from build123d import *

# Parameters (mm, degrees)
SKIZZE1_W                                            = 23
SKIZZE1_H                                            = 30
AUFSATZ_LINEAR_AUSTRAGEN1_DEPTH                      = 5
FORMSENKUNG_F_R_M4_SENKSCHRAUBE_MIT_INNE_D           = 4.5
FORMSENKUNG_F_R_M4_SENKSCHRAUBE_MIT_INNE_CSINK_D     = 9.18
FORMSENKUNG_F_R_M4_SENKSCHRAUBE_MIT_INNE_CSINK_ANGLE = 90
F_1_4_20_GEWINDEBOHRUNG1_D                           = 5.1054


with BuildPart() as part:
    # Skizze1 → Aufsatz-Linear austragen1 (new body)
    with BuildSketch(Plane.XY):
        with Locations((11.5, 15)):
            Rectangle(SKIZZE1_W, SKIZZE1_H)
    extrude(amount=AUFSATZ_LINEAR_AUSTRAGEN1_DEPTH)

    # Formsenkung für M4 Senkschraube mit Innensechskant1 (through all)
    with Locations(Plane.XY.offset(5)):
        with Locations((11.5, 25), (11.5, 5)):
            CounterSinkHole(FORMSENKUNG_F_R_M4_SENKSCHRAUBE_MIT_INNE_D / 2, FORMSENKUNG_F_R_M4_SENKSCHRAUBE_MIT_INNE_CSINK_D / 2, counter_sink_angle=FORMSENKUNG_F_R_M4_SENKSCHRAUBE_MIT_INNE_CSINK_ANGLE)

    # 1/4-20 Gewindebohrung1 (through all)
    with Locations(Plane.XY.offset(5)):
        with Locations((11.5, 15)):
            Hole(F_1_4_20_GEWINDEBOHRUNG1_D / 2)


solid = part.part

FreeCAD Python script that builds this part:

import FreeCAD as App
import Part
import Sketcher
from FreeCAD import Vector
Q = App.Units.Quantity


def add_polygon(sketch, points):
    """Adds a closed chain of lines whose ends are joined by coincident constraints."""
    first, n = sketch.GeometryCount, len(points)
    for a, b in zip(points, points[1:] + points[:1]):
        sketch.addGeometry(Part.LineSegment(App.Vector(*a, 0), App.Vector(*b, 0)), False)
    for i in range(n):
        sketch.addConstraint(Sketcher.Constraint("Coincident", first + i, 2, first + (i + 1) % n, 1))

doc = App.newDocument("Part")
body = doc.addObject("PartDesign::Body", "Body")

# Sketch on XY plane
sketch1 = body.newObject("Sketcher::SketchObject", "Sketch")
sketch1.AttachmentSupport = (doc.getObject("XY_Plane"), [""])
sketch1.MapMode = "FlatFace"
add_polygon(sketch1, [(0, 30), (0, 0), (23, 0), (23, 30)])  # lines 0-3
sketch1.addConstraint([
    Sketcher.Constraint("Vertical", 0),
    Sketcher.Constraint("Horizontal", 1),
    Sketcher.Constraint("Vertical", 2),
    Sketcher.Constraint("Horizontal", 3),
    Sketcher.Constraint("Coincident", 0, 2, -1, 1),
    Sketcher.Constraint("DistanceX", 1, 1, 1, 2, Q("23 mm")),
    Sketcher.Constraint("DistanceY", 0, 2, 0, 1, Q("30 mm")),
])
pad1 = body.newObject("PartDesign::Pad", "Pad")
pad1.Profile = sketch1
pad1.Length = 5

# Sketch on XY plane
sketch2 = body.newObject("Sketcher::SketchObject", "Sketch001")
sketch2.AttachmentSupport = (doc.getObject("XY_Plane"), [""])
sketch2.MapMode = "FlatFace"
sketch2.AttachmentOffset = App.Placement(Vector(0, 0, 5), App.Rotation())
sketch2.addGeometry([
    Part.Circle(Vector(11.5, 25, 0), Vector(0, 0, 1), 2.25),
    Part.Circle(Vector(11.5, 5, 0), Vector(0, 0, 1), 2.25),
], False)
sketch2.addConstraint([
    Sketcher.Constraint("Equal", 0, 1),
    Sketcher.Constraint("Vertical", 0, 3, 1, 3),
    Sketcher.Constraint("Diameter", 0, Q("4.5 mm")),
    Sketcher.Constraint("DistanceY", -1, 1, 0, 3, Q("25 mm")),
    Sketcher.Constraint("DistanceY", -1, 1, 1, 3, Q("5 mm")),
    Sketcher.Constraint("DistanceX", -1, 1, 0, 3, Q("11.5 mm")),
])
doc.recompute()
hole = body.newObject("PartDesign::Hole", "Hole")
hole.Profile = sketch2
hole.ThreadType = "None"
hole.Diameter = 4.5
hole.DepthType = "ThroughAll"
hole.HoleCutType = "Countersink"
hole.HoleCutDiameter = 9.18
hole.HoleCutCountersinkAngle = 90

# Sketch on XY plane
sketch3 = body.newObject("Sketcher::SketchObject", "Sketch002")
sketch3.AttachmentSupport = (doc.getObject("XY_Plane"), [""])
sketch3.MapMode = "FlatFace"
sketch3.AttachmentOffset = App.Placement(Vector(0, 0, 5), App.Rotation())
sketch3.addGeometry(Part.Circle(Vector(11.5, 15, 0), Vector(0, 0, 1), 2.5527), False)
sketch3.addConstraint([
    Sketcher.Constraint("DistanceY", -1, 1, 0, 3, Q("15 mm")),
    Sketcher.Constraint("Diameter", 0, Q("5.1054 mm")),
    Sketcher.Constraint("DistanceX", -1, 1, 0, 3, Q("11.5 mm")),
])
doc.recompute()
hole2 = body.newObject("PartDesign::Hole", "Hole001")
hole2.Profile = sketch3
hole2.ThreadType = "None"
hole2.Diameter = 5.1054
hole2.DepthType = "ThroughAll"

doc.recompute()
